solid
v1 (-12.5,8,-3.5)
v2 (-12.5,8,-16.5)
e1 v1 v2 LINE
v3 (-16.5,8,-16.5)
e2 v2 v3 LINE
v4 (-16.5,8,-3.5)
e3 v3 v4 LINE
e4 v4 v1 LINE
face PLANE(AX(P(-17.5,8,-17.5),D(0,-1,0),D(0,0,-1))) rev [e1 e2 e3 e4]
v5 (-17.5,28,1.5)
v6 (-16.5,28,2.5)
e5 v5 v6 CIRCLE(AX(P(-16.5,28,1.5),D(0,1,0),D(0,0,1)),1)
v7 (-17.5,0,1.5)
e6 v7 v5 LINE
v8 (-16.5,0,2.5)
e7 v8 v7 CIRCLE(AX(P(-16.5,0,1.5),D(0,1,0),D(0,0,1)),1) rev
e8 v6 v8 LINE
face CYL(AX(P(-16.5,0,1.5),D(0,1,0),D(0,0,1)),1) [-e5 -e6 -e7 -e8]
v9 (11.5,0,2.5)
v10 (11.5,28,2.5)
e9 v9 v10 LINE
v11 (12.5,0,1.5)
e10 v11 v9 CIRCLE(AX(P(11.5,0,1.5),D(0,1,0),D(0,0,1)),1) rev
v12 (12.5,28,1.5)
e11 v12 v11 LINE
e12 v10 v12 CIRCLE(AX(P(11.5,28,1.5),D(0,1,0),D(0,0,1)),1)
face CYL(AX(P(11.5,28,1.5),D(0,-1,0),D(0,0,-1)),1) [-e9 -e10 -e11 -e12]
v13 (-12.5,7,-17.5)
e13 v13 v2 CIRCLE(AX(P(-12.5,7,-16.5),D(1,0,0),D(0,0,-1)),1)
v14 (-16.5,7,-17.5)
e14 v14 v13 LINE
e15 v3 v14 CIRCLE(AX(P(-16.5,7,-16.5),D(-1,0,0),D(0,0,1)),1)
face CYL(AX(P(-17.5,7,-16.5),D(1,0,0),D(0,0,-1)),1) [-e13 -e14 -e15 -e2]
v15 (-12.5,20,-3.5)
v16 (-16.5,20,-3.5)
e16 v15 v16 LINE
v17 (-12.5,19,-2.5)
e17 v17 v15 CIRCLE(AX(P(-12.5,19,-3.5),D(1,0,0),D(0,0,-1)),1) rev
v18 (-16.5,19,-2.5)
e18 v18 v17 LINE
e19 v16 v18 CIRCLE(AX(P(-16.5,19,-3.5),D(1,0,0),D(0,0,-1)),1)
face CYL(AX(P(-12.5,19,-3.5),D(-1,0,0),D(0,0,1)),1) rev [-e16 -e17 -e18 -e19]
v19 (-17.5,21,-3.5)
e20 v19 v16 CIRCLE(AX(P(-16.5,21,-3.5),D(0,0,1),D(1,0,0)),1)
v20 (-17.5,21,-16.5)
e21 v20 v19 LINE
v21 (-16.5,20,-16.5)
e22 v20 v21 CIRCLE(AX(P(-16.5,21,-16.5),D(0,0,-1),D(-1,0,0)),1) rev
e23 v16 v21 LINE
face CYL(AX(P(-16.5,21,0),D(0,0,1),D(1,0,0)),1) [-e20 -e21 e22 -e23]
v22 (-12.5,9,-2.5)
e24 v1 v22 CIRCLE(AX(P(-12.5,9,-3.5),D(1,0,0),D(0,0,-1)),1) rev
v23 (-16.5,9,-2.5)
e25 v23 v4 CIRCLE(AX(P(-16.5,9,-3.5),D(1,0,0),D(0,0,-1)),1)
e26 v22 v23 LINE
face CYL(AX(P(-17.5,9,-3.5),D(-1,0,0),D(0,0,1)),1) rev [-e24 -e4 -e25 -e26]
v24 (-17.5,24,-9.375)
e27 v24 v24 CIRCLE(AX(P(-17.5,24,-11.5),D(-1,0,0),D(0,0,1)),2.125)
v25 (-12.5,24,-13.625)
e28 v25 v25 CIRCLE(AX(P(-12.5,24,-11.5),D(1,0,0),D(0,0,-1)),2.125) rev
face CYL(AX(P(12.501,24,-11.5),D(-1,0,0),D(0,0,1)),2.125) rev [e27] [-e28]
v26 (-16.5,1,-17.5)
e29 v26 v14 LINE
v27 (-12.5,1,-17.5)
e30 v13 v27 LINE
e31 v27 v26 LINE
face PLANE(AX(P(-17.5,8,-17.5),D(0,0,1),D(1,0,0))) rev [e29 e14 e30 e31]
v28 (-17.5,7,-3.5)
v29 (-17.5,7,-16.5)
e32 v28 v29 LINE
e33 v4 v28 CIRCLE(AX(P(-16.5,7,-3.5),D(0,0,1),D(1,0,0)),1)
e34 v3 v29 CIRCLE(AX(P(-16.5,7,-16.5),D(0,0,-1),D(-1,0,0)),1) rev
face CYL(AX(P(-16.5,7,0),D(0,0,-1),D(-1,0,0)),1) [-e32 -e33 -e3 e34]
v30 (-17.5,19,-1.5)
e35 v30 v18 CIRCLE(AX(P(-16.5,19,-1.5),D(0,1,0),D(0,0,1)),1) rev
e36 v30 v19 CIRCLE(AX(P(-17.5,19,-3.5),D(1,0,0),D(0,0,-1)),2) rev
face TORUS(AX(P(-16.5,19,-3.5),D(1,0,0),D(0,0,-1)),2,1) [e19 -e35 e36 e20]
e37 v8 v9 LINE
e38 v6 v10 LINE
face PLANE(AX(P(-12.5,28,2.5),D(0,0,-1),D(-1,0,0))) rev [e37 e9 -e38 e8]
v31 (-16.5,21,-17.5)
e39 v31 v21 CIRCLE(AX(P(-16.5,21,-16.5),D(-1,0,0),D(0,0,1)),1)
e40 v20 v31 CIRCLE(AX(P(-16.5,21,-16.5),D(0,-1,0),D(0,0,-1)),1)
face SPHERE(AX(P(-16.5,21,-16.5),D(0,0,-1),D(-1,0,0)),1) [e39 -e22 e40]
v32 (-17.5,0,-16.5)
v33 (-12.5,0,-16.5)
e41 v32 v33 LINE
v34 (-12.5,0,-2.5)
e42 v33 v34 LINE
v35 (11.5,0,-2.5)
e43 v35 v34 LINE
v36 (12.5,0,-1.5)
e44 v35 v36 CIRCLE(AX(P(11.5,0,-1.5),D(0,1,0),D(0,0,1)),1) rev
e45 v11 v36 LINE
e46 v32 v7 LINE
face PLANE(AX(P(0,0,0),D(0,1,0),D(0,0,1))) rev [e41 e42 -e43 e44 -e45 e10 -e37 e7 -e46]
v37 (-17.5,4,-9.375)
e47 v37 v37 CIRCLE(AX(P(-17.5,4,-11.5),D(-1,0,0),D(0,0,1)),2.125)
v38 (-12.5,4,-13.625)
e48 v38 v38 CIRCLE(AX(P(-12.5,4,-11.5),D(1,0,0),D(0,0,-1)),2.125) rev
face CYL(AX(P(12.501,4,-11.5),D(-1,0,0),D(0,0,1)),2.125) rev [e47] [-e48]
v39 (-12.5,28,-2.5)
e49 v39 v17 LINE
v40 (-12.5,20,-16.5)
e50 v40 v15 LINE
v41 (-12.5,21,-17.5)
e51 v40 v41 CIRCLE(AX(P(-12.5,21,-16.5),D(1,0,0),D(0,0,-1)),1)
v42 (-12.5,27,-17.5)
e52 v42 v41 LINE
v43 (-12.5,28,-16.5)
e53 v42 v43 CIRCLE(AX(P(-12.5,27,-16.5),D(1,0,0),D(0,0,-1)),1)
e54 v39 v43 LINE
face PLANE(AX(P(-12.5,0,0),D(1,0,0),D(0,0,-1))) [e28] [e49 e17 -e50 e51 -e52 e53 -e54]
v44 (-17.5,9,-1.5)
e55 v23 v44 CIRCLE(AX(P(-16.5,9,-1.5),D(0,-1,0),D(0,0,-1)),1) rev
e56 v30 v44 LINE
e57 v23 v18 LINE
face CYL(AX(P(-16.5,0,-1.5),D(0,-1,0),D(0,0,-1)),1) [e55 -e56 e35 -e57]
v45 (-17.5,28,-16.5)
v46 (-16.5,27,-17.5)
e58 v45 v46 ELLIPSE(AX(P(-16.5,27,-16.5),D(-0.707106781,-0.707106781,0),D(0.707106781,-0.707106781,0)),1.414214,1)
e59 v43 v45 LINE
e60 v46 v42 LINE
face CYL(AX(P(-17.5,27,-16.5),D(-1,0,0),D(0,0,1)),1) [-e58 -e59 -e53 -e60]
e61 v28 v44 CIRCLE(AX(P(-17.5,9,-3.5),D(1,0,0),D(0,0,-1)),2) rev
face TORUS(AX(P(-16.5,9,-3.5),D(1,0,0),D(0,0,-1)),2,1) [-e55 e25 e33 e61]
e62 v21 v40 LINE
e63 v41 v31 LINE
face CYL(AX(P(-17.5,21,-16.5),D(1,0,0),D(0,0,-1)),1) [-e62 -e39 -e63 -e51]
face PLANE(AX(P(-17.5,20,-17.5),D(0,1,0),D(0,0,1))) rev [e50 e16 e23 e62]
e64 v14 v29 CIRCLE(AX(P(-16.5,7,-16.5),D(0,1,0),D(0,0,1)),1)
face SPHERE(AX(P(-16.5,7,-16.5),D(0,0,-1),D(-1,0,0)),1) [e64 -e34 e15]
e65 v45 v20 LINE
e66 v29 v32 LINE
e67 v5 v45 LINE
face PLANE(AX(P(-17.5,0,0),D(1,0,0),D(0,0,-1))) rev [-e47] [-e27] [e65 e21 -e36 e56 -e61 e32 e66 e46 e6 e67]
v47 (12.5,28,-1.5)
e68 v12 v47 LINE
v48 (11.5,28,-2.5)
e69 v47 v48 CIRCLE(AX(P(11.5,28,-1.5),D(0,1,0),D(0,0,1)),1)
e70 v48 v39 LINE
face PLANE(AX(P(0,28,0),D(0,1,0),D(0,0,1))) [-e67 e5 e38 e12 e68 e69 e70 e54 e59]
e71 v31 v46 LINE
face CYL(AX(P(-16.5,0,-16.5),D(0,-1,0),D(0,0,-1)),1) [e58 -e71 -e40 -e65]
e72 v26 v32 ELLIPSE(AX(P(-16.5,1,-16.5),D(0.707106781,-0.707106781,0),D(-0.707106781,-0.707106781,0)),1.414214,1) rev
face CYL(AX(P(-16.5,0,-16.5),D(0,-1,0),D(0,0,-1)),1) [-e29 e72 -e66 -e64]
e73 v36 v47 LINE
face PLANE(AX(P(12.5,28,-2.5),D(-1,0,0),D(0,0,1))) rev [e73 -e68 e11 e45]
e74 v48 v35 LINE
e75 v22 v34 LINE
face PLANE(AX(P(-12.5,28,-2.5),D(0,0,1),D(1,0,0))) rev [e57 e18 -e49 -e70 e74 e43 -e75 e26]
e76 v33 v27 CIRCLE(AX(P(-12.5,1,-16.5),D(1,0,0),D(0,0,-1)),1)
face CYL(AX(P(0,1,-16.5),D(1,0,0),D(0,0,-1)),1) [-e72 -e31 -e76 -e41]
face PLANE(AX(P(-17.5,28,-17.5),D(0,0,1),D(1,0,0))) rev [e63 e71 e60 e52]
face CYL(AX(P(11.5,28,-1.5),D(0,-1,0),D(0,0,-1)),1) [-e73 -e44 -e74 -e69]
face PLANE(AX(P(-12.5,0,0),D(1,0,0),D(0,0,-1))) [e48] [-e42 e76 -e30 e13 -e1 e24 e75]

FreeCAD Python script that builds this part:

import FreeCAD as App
import Part
import Sketcher


def edges_at(feature, points):
    """Names of the edges that pass closest to the given points."""
    edges = feature.Shape.Edges
    near = lambda p: min(range(len(edges)), key=lambda i: edges[i].distToShape(Part.Vertex(*p))[0])
    return sorted({f"Edge{near(p) + 1}" for p in points})


def add_polygon(sketch, points):
    """Adds a closed chain of lines whose ends are joined by coincident constraints."""
    first, n = sketch.GeometryCount, len(points)
    for a, b in zip(points, points[1:] + points[:1]):
        sketch.addGeometry(Part.LineSegment(App.Vector(*a, 0), App.Vector(*b, 0)), False)
    for i in range(n):
        sketch.addConstraint(Sketcher.Constraint("Coincident", first + i, 2, first + (i + 1) % n, 1))

doc = App.newDocument("Part")
params = doc.addObject("Spreadsheet::Sheet", "Params")
for row, (alias, value) in enumerate([
    ("sketch1_width", "25 mm"),
    ("sketch1_height", "5 mm"),
    ("pad1_length", "28 mm"),
    ("sketch2_width", "12 mm"),
    ("sketch2_width2", "8 mm"),
    ("sketch2_height", "15 mm"),
    ("sketch2_height2", "20 mm"),
    ("pad2_length", "5 mm"),
    ("fillet_radius", "1 mm"),
    ("sketch3_diameter", "4.25 mm"),
    ("sketch4_diameter", "4.25 mm"),
], start=1):
    params.set(f"A{row}", alias)
    params.set(f"B{row}", "=" + value)
    params.setAlias(f"B{row}", alias)

body = doc.addObject("PartDesign::Body", "Body")

# Sketch on XZ plane
sketch1 = body.newObject("Sketcher::SketchObject", "Sketch")
sketch1.AttachmentSupport = (doc.getObject("XZ_Plane"), [""])
sketch1.MapMode = "FlatFace"
add_polygon(sketch1, [(-12, -2), (-12, 2), (12, 2), (12, -2)])  # lines 0-3
sketch1.addConstraint([
    Sketcher.Constraint("Vertical", 0),
    Sketcher.Constraint("Horizontal", 1),
    Sketcher.Constraint("Vertical", 2),
    Sketcher.Constraint("Horizontal", 3),
    Sketcher.Constraint("Symmetric", 0, 2, 2, 2, -1, 1),
    Sketcher.Constraint("DistanceX", 1, 1, 1, 2, 25.0),
    Sketcher.Constraint("DistanceY", 0, 1, 0, 2, 5.0),
])
sketch1.setExpression("Constraints[9]", "Params.sketch1_width")
sketch1.setExpression("Constraints[10]", "Params.sketch1_height")
pad1 = body.newObject("PartDesign::Pad", "Pad")
pad1.Profile = sketch1
pad1.setExpression("Length", "Params.pad1_length")
pad1.Reversed = True

# Sketch on YZ plane
sketch2 = body.newObject("Sketcher::SketchObject", "Sketch001")
sketch2.AttachmentSupport = (doc.getObject("YZ_Plane"), [""])
sketch2.MapMode = "FlatFace"
sketch2.AttachmentOffset = App.Placement(App.Vector(0, 0, -12.5), App.Rotation())
add_polygon(sketch2, [(20, -18), (20, -2), (8, -2), (8, -18), (0, -18), (0, 2), (28, 2), (28, -18)])  # lines 0-7
sketch2.addConstraint([
    Sketcher.Constraint("Vertical", 0),
    Sketcher.Constraint("Horizontal", 1),
    Sketcher.Constraint("Vertical", 2),
    Sketcher.Constraint("Horizontal", 3),
    Sketcher.Constraint("Vertical", 4),
    Sketcher.Constraint("Horizontal", 5),
    Sketcher.Constraint("Vertical", 6),
    Sketcher.Constraint("Horizontal", 7),
    Sketcher.Constraint("PointOnObject", 3, 2, -2),
    Sketcher.Constraint("Horizontal", 3, 2, 6, 2),
    Sketcher.Constraint("Equal", 3, 7),
    Sketcher.Constraint("DistanceX", 1, 2, 1, 1, 12.0),
    Sketcher.Constraint("DistanceX", 3, 2, 3, 1, 8.0),
    Sketcher.Constraint("DistanceY", 0, 1, 0, 2, 15.0),
    Sketcher.Constraint("DistanceY", 4, 1, 4, 2, 20.0),
    Sketcher.Constraint("DistanceY", 0, 2, -1, 1, 2.5),
])
sketch2.setExpression("Constraints[19]", "Params.sketch2_width")
sketch2.setExpression("Constraints[20]", "Params.sketch2_width2")
sketch2.setExpression("Constraints[21]", "Params.sketch2_height")
sketch2.setExpression("Constraints[22]", "Params.sketch2_height2")
pad2 = body.newObject("PartDesign::Pad", "Pad001")
pad2.Profile = sketch2
pad2.setExpression("Length", "Params.pad2_length")
pad2.Reversed = True
doc.recompute()

fillet = body.newObject("PartDesign::Fillet", "Fillet")
fillet.Base = (pad2, edges_at(pad2, [
    (-15, 28, -17.5),
    (-15, 20, -17.5),
    (-15, 20, -2.5),
    (-15, 8, -2.5),
    (-15, 8, -17.5),
    (-15, 0, -17.5),
    (-17.5, 14, 2.5),
    (-17.5, 24, -17.5),
    (-17.5, 20, -10),
    (-17.5, 14, -2.5),
    (-17.5, 8, -10),
    (-17.5, 4, -17.5),
    (12.5, 14, 2.5),
    (12.5, 14, -2.5),
]))
fillet.setExpression("Radius", "Params.fillet_radius")

# Sketch on YZ plane
sketch3 = body.newObject("Sketcher::SketchObject", "Sketch002")
sketch3.AttachmentSupport = (doc.getObject("YZ_Plane"), [""])
sketch3.MapMode = "FlatFace"
sketch3.AttachmentOffset = App.Placement(App.Vector(0, 0, -17.5), App.Rotation())
sketch3.addGeometry(Part.Circle(App.Vector(24, -11.5, 0), App.Vector(0, 0, 1), 2.1), False)
sketch3.addConstraint([
    Sketcher.Constraint("Diameter", 0, 4.25),
    Sketcher.Constraint("DistanceX", -1, 1, 0, 3, 24.0),
    Sketcher.Constraint("DistanceY", 0, 3, -1, 1, 11.5),
])
sketch3.setExpression("Constraints[0]", "Params.sketch3_diameter")
pocket1 = body.newObject("PartDesign::Pocket", "Pocket")
pocket1.Profile = sketch3
pocket1.Type = "UpToFirst"
pocket1.Reversed = True

# Sketch on YZ plane
sketch4 = body.newObject("Sketcher::SketchObject", "Sketch003")
sketch4.AttachmentSupport = (doc.getObject("YZ_Plane"), [""])
sketch4.MapMode = "FlatFace"
sketch4.AttachmentOffset = App.Placement(App.Vector(0, 0, -17.5), App.Rotation())
sketch4.addGeometry(Part.Circle(App.Vector(4, -11.5, 0), App.Vector(0, 0, 1), 2.1), False)
sketch4.addConstraint([
    Sketcher.Constraint("Diameter", 0, 4.25),
    Sketcher.Constraint("DistanceX", -1, 1, 0, 3, 4.0),
    Sketcher.Constraint("DistanceY", 0, 3, -1, 1, 11.5),
])
sketch4.setExpression("Constraints[0]", "Params.sketch4_diameter")
pocket2 = body.newObject("PartDesign::Pocket", "Pocket001")
pocket2.Profile = sketch4
pocket2.Type = "UpToFirst"
pocket2.Reversed = True

doc.recompute()
